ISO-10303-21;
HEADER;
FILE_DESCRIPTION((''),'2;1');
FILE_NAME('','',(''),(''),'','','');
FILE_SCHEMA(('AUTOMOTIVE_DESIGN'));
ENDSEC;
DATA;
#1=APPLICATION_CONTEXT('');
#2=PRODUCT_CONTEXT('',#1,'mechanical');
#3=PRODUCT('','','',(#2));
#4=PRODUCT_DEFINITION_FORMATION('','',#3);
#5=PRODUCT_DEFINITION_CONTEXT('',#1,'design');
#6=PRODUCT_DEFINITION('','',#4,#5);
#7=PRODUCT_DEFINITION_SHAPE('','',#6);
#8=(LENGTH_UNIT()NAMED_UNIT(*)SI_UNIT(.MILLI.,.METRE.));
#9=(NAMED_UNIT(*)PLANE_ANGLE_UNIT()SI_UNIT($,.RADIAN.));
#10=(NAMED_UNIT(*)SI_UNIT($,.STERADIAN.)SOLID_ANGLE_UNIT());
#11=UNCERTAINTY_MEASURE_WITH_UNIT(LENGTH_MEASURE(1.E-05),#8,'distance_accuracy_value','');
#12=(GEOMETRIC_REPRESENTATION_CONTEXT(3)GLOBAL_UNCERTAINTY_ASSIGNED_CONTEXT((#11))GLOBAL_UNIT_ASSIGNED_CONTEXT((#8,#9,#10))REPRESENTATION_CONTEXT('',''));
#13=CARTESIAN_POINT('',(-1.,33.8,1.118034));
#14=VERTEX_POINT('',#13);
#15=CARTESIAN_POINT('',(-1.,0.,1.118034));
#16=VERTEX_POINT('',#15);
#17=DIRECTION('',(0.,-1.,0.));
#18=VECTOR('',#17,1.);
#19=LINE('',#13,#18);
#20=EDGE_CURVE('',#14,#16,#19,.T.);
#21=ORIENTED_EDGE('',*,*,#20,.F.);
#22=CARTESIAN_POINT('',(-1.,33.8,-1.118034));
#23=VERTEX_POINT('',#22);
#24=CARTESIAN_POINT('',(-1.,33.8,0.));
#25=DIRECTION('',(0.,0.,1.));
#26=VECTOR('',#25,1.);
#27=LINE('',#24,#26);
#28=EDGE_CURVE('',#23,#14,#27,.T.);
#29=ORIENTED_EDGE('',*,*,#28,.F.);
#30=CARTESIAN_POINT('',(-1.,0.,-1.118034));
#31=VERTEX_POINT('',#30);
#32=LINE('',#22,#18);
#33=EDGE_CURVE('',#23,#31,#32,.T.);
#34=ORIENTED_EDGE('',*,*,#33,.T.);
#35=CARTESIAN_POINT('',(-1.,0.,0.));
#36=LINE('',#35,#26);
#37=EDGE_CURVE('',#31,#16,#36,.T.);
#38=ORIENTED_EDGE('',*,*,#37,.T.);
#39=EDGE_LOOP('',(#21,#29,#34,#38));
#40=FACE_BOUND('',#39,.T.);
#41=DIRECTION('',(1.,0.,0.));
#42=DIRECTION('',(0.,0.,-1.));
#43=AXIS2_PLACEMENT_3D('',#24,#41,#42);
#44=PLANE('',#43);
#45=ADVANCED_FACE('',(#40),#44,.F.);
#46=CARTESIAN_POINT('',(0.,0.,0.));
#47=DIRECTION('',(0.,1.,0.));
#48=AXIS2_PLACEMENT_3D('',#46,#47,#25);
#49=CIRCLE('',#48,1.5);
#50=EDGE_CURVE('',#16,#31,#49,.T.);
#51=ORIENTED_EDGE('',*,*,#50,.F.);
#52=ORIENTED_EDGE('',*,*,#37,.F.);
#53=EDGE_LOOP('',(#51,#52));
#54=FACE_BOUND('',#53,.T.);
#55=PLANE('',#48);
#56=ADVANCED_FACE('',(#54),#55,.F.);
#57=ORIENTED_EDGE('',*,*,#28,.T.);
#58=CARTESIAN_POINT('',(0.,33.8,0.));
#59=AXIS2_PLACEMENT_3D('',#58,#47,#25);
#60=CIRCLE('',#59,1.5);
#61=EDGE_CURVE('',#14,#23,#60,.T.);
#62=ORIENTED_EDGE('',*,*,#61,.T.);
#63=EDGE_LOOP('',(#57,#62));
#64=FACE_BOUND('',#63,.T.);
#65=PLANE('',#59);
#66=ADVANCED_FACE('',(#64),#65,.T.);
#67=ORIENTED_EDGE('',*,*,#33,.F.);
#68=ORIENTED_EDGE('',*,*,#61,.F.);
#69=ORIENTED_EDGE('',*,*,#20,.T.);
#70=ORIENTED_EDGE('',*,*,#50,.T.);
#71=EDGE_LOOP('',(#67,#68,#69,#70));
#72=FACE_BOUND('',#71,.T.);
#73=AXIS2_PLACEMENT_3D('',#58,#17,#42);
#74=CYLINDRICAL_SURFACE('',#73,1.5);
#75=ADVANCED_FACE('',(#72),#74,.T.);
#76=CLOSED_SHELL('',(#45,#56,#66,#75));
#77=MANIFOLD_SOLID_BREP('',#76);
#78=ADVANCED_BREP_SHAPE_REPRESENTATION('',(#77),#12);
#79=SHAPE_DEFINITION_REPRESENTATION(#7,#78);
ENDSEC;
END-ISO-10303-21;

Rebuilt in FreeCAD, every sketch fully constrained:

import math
import FreeCAD as App
import Part
import Sketcher
Q = App.Units.Quantity

doc = App.newDocument("Part")
body = doc.addObject("PartDesign::Body", "Body")

# Sketch on XZ plane
sketch1 = body.newObject("Sketcher::SketchObject", "Sketch")
sketch1.AttachmentSupport = (doc.getObject("XZ_Plane"), [""])
sketch1.MapMode = "FlatFace"
sketch1.addGeometry([
    Part.ArcOfCircle(Part.Circle(App.Vector(0, 0, 0), App.Vector(0, 0, 1), 1.5), math.radians(-131.810315), math.radians(0)),
    Part.LineSegment(App.Vector(-1, -1.118034, 0), App.Vector(-1, 1.118034, 0)),
    Part.ArcOfCircle(Part.Circle(App.Vector(0, 0, 0), App.Vector(0, 0, 1), 1.5), math.radians(0), math.radians(131.810315)),
], False)
sketch1.addConstraint([
    Sketcher.Constraint("Coincident", 0, 1, 1, 1),
    Sketcher.Constraint("Coincident", 1, 2, 2, 2),
    Sketcher.Constraint("Tangent", 2, 1, 0, 2),
    Sketcher.Constraint("Vertical", 1),
    Sketcher.Constraint("Coincident", 0, 3, -1, 1),
    Sketcher.Constraint("Equal", 0, 2),
    Sketcher.Constraint("PointOnObject", 2, 1, -1),
    Sketcher.Constraint("Radius", 0, Q("1.5 mm")),
    Sketcher.Constraint("DistanceX", 0, 1, -1, 1, Q("1 mm")),
])
pad1 = body.newObject("PartDesign::Pad", "Pad")
pad1.Profile = sketch1
pad1.Length = 33.8
pad1.Reversed = True

doc.recompute()
